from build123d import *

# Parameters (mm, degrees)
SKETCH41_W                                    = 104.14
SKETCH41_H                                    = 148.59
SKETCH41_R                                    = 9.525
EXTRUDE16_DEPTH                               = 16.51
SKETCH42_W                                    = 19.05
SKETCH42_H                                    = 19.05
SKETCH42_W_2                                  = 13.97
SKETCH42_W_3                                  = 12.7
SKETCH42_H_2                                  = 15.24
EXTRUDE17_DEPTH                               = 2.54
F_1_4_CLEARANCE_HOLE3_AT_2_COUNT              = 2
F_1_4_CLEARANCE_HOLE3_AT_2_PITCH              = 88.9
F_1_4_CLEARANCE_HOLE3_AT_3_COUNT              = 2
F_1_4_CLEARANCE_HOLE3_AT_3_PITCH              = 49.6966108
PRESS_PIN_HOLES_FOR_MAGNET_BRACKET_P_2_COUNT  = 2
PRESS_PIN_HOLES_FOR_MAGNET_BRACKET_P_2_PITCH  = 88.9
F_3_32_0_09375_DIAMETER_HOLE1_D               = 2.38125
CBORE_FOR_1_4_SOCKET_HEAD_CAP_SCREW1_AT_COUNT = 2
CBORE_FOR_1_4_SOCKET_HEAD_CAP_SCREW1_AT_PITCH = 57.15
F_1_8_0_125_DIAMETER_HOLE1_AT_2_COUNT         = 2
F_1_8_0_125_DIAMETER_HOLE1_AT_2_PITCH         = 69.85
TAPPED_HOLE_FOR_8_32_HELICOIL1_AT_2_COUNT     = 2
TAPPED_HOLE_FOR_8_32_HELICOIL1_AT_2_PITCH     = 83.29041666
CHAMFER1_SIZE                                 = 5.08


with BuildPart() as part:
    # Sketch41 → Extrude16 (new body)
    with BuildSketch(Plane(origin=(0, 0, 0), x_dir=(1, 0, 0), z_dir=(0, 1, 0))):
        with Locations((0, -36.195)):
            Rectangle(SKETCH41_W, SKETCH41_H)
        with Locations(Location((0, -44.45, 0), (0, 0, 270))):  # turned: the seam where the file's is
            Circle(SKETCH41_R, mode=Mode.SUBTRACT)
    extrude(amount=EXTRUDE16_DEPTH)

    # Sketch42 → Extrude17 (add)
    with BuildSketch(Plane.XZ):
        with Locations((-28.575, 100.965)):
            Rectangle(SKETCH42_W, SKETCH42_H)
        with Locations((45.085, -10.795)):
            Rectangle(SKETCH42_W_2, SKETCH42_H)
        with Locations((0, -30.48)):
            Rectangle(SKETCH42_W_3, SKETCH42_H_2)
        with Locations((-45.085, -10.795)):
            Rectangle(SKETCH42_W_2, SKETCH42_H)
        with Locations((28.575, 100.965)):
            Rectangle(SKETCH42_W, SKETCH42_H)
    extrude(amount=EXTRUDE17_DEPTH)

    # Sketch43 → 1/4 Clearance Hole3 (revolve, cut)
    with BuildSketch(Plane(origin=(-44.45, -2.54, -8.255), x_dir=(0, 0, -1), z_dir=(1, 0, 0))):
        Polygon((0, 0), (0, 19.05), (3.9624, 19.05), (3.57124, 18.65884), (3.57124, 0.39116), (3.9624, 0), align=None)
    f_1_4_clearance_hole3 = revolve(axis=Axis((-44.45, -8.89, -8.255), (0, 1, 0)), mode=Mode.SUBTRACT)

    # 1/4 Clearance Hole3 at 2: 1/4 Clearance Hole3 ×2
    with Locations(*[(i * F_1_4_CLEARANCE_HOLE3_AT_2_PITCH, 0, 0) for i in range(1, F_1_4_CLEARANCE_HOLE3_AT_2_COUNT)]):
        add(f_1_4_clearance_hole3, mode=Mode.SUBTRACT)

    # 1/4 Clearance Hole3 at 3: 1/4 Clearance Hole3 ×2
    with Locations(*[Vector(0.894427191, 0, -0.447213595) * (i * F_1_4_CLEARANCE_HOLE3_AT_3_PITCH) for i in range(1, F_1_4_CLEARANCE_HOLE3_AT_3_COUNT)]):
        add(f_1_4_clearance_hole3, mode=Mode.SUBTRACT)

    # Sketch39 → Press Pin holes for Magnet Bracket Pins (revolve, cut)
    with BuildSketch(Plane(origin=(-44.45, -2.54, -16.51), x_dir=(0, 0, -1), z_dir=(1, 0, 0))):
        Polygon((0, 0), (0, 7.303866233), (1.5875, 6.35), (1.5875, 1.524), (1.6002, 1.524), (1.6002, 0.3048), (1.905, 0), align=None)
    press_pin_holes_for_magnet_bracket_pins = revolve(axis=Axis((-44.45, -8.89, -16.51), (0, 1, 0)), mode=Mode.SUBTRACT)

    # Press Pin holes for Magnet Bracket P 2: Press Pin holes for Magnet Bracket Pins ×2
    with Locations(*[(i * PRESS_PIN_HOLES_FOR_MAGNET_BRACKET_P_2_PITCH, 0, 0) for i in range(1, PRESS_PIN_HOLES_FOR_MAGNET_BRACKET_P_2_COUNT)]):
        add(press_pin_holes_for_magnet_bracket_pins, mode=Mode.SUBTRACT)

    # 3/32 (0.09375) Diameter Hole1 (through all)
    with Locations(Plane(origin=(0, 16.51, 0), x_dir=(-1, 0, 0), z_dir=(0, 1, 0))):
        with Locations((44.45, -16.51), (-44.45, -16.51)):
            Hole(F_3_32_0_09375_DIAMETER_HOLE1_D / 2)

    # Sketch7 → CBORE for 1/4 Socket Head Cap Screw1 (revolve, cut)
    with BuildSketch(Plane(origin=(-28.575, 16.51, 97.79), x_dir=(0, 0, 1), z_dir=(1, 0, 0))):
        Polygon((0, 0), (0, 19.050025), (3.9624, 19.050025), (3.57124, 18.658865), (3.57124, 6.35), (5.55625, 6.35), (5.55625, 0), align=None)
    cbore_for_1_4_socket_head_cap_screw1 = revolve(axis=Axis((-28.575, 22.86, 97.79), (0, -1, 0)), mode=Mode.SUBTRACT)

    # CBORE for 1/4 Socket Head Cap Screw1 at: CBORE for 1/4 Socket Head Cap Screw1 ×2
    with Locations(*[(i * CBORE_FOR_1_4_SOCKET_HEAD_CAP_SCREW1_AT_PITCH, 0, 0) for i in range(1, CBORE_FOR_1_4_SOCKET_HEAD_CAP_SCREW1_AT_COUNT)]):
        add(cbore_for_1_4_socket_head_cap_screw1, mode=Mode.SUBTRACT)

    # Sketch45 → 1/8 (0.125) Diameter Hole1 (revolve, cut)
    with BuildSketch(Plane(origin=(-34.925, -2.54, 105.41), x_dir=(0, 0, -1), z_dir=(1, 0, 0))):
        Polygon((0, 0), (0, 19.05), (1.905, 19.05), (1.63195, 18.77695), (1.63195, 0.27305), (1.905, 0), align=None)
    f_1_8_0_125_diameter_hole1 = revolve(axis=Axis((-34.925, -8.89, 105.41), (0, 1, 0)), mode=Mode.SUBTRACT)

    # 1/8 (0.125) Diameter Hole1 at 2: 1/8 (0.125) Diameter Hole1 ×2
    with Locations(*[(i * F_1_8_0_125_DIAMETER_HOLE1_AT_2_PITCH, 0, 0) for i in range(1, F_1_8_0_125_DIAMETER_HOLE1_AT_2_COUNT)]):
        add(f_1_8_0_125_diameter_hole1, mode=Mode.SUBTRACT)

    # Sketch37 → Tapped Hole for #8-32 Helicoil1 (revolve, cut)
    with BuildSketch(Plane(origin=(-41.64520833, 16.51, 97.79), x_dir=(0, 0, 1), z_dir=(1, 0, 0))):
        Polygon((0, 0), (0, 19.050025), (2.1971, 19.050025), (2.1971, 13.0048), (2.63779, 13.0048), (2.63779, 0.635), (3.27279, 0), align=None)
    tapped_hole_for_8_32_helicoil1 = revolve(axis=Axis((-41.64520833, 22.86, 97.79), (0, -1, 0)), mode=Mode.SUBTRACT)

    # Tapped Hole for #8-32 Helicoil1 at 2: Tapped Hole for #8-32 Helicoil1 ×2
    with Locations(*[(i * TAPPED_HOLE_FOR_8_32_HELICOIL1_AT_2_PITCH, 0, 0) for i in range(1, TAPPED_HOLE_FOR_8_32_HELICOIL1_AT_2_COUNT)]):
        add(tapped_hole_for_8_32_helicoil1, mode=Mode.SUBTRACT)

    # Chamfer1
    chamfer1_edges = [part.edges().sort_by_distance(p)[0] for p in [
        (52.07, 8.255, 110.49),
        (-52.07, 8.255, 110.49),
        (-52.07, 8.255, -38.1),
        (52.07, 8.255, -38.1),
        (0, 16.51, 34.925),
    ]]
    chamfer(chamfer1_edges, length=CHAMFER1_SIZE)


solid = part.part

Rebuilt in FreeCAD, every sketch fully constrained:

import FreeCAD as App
import Part
import Sketcher

V = App.Vector
Q = App.Units.Quantity


def edges_at(feature, points):
    """Names of the edges that pass closest to the given points."""
    edges = feature.Shape.Edges
    near = lambda p: min(range(len(edges)), key=lambda i: edges[i].distToShape(Part.Vertex(*p))[0])
    return sorted({f"Edge{near(p) + 1}" for p in points})


def add_polygon(sketch, points):
    """Adds a closed chain of lines whose ends are joined by coincident constraints."""
    first, n = sketch.GeometryCount, len(points)
    for a, b in zip(points, points[1:] + points[:1]):
        sketch.addGeometry(Part.LineSegment(App.Vector(*a, 0), App.Vector(*b, 0)), False)
    for i in range(n):
        sketch.addConstraint(Sketcher.Constraint("Coincident", first + i, 2, first + (i + 1) % n, 1))

doc = App.newDocument("Part")
body = doc.addObject("PartDesign::Body", "Body")

# Sketch on XZ plane
sketch1 = doc.addObject("Sketcher::SketchObject", "Sketch")
body.addObject(sketch1)
sketch1.AttachmentSupport = (doc.XZ_Plane, [""])
sketch1.MapMode = "FlatFace"
add_polygon(sketch1, [(-52.07, -38.1), (-52.07, 110.49), (52.07, 110.49), (52.07, -38.1)])  # lines 0-3
sketch1.addGeometry(Part.Circle(V(0, 44.45, 0), V(0, 0, 1), 9.525), False)  # 4
sketch1.addConstraint([
    Sketcher.Constraint("Vertical", 0),
    Sketcher.Constraint("Horizontal", 1),
    Sketcher.Constraint("Vertical", 2),
    Sketcher.Constraint("Horizontal", 3),
    Sketcher.Constraint("PointOnObject", 4, 3, -2),
    Sketcher.Constraint("Diameter", 4, Q("0.75 in")),
    Sketcher.Constraint("DistanceX", 1, 1, 1, 2, Q("4.1 in")),
    Sketcher.Constraint("DistanceY", 0, 1, 0, 2, Q("5.85 in")),
    Sketcher.Constraint("DistanceY", 2, 2, -1, 1, Q("1.5 in")),
    Sketcher.Constraint("DistanceY", 4, 3, 0, 2, Q("2.6 in")),
    Sketcher.Constraint("DistanceX", 0, 2, -1, 1, Q("2.05 in")),
])
pad1 = doc.addObject("PartDesign::Pad", "Pad")
body.addObject(pad1)
pad1.Profile = sketch1
pad1.Length = Q("0.65 in")
pad1.Reversed = True

# Sketch on XZ plane
sketch2 = doc.addObject("Sketcher::SketchObject", "Sketch001")
body.addObject(sketch2)
sketch2.AttachmentSupport = (doc.XZ_Plane, [""])
sketch2.MapMode = "FlatFace"
add_polygon(sketch2, [(-38.1, 110.49), (-38.1, 91.44), (-19.05, 91.44), (-19.05, 110.49)])  # lines 0-3
add_polygon(sketch2, [(38.1, -1.27), (38.1, -20.32), (52.07, -20.32), (52.07, -1.27)])  # lines 4-7
add_polygon(sketch2, [(-6.35, -22.86), (-6.35, -38.1), (6.35, -38.1), (6.35, -22.86)])  # lines 8-11
add_polygon(sketch2, [(-52.07, -1.27), (-52.07, -20.32), (-38.1, -20.32), (-38.1, -1.27)])  # lines 12-15
add_polygon(sketch2, [(19.05, 110.49), (19.05, 91.44), (38.1, 91.44), (38.1, 110.49)])  # lines 16-19
sketch2.addConstraint([
    Sketcher.Constraint("Vertical", 0),
    Sketcher.Constraint("Horizontal", 1),
    Sketcher.Constraint("Vertical", 2),
    Sketcher.Constraint("Horizontal", 3),
    Sketcher.Constraint("Vertical", 4),
    Sketcher.Constraint("Horizontal", 5),
    Sketcher.Constraint("Vertical", 6),
    Sketcher.Constraint("Horizontal", 7),
    Sketcher.Constraint("Vertical", 8),
    Sketcher.Constraint("Horizontal", 9),
    Sketcher.Constraint("Vertical", 10),
    Sketcher.Constraint("Horizontal", 11),
    Sketcher.Constraint("Vertical", 12),
    Sketcher.Constraint("Horizontal", 13),
    Sketcher.Constraint("Vertical", 14),
    Sketcher.Constraint("Horizontal", 15),
    Sketcher.Constraint("Vertical", 16),
    Sketcher.Constraint("Horizontal", 17),
    Sketcher.Constraint("Vertical", 18),
    Sketcher.Constraint("Horizontal", 19),
    Sketcher.Constraint("Symmetric", 5, 2, 12, 2, -2),
    Sketcher.Constraint("Symmetric", 7, 2, 14, 2, -2),
    Sketcher.Constraint("Symmetric", 1, 2, 16, 2, -2),
    Sketcher.Constraint("Symmetric", 3, 2, 18, 2, -2),
    Sketcher.Constraint("Vertical", 3, 2, 13, 2),
    Sketcher.Constraint("Equal", 19, 0),
    Sketcher.Constraint("Equal", 2, 4),
    Sketcher.Constraint("DistanceX", 9, 1, 9, 2, Q("0.5 in")),
    Sketcher.Constraint("DistanceY", 8, 2, 8, 1, Q("0.6 in")),
    Sketcher.Constraint("DistanceX", 0, 2, 4, 2, Q("3 in")),
    Sketcher.Constraint("DistanceX", 1, 1, 1, 2, Q("0.75 in")),
    Sketcher.Constraint("DistanceX", 5, 1, 5, 2, Q("0.55 in")),
    Sketcher.Constraint("DistanceY", -1, 1, 0, 2, Q("3.6 in")),
    Sketcher.Constraint("DistanceY", 4, 2, -1, 1, Q("0.8 in")),
    Sketcher.Constraint("DistanceY", 8, 2, -1, 1, Q("1.5 in")),
    Sketcher.Constraint("DistanceX", 8, 2, 5, 2, Q("2.3 in")),
])
pad2 = doc.addObject("PartDesign::Pad", "Pad001")
body.addObject(pad2)
pad2.Profile = sketch2
pad2.Length = Q("0.1 in")

# Sketch on YZ plane
sketch3 = doc.addObject("Sketcher::SketchObject", "Sketch002")
body.addObject(sketch3)
sketch3.AttachmentSupport = (doc.YZ_Plane, [""])
sketch3.MapMode = "FlatFace"
sketch3.AttachmentOffset = App.Placement(V(0, 0, -1.75 * 25.4), App.Rotation())
add_polygon(sketch3, [(16.51, -8.255), (-2.54, -8.255), (-2.54, -12.2174), (-2.14884, -11.82624), (16.11884, -11.82624), (16.51, -12.2174)])  # lines 0-5
sketch3.addGeometry(Part.LineSegment(V(-2.54, -8.255, 0), V(16.51, -8.255, 0)), True)  # axis
sketch3.addConstraint([
    Sketcher.Constraint("Horizontal", 0),
    Sketcher.Constraint("Vertical", 1),
    Sketcher.Constraint("Horizontal", 3),
    Sketcher.Constraint("Vertical", 5),
    Sketcher.Constraint("Horizontal", 6),
    Sketcher.Constraint("Coincident", 6, 1, 0, 2),
    Sketcher.Constraint("Perpendicular", 2, 4),
    Sketcher.Constraint("Horizontal", 1, 2, 4, 2),
    Sketcher.Constraint("Vertical", 4, 2, 6, 2),
    Sketcher.Constraint("Equal", 2, 4),
    Sketcher.Constraint("DistanceX", 0, 2, 0, 1, Q("0.75 in")),
    Sketcher.Constraint("DistanceX", 0, 2, -1, 1, Q("0.1 in")),
    Sketcher.Constraint("DistanceY", 1, 2, 1, 1, Q("0.156 in")),
    Sketcher.Constraint("DistanceX", 3, 1, 3, 2, Q("0.7192 in")),
    Sketcher.Constraint("DistanceY", 0, 2, -1, 1, Q("0.325 in")),
])
groove = doc.addObject("PartDesign::Groove", "Groove")
body.addObject(groove)
groove.Profile = sketch3
groove.ReferenceAxis = (sketch3, ["Axis0"])
groove.Angle = 360
doc.recompute()

linearpattern = doc.addObject("PartDesign::LinearPattern", "LinearPattern")
body.addObject(linearpattern)
linearpattern.Originals = [groove]
linearpattern.Direction = (doc.X_Axis, [""])
linearpattern.Mode = "offset"
linearpattern.Offset = Q("3.5 in")
linearpattern.Occurrences = 2
body.Tip = linearpattern
doc.recompute()

datumline = doc.addObject("PartDesign::Line", "DatumLine")
body.addObject(datumline)
datumline.Placement = App.Placement(V(0, 0, 0), App.Rotation(V(0, 0, 1), V(0.894427191, 0, -0.447213595)))
linearpattern2 = doc.addObject("PartDesign::LinearPattern", "LinearPattern001")
body.addObject(linearpattern2)
linearpattern2.Originals = [groove]
linearpattern2.Direction = (datumline, [""])
linearpattern2.Mode = "offset"
linearpattern2.Offset = 49.696611
linearpattern2.Occurrences = 2
body.Tip = linearpattern2

# Sketch on YZ plane
sketch4 = doc.addObject("Sketcher::SketchObject", "Sketch003")
body.addObject(sketch4)
sketch4.AttachmentSupport = (doc.YZ_Plane, [""])
sketch4.MapMode = "FlatFace"
sketch4.AttachmentOffset = App.Placement(V(0, 0, -1.75 * 25.4), App.Rotation())
add_polygon(sketch4, [(4.763866, -16.51), (-2.54, -16.51), (-2.54, -18.415), (-2.2352, -18.1102), (-1.016, -18.1102), (-1.016, -18.0975), (3.81, -18.0975)])  # lines 0-6
sketch4.addGeometry(Part.LineSegment(V(-2.54, -16.51, 0), V(4.763866, -16.51, 0)), True)  # axis
sketch4.addConstraint([
    Sketcher.Constraint("Horizontal", 0),
    Sketcher.Constraint("Vertical", 1),
    Sketcher.Constraint("Horizontal", 3),
    Sketcher.Constraint("Vertical", 4),
    Sketcher.Constraint("Horizontal", 5),
    Sketcher.Constraint("Horizontal", 7),
    Sketcher.Constraint("Coincident", 7, 1, 0, 2),
    Sketcher.Constraint("Equal", 0, 7),
    Sketcher.Constraint("Angle", 2, Q("45 deg")),
    Sketcher.Constraint("Angle", 6, Q("59 deg")),
    Sketcher.Constraint("DistanceX", 5, 1, 5, 2, Q("0.19 in")),
    Sketcher.Constraint("DistanceX", 0, 2, -1, 1, Q("0.1 in")),
    Sketcher.Constraint("DistanceX", 3, 1, 3, 2, Q("0.048 in")),
    Sketcher.Constraint("DistanceY", 1, 2, 1, 1, Q("0.075 in")),
    Sketcher.Constraint("DistanceY", 0, 2, -1, 1, Q("0.65 in")),
    Sketcher.Constraint("DistanceX", 3, 2, -1, 1, Q("0.04 in")),
    Sketcher.Constraint("DistanceY", 4, 1, 4, 2, Q("0.0005 in")),
])
groove2 = doc.addObject("PartDesign::Groove", "Groove001")
body.addObject(groove2)
groove2.Profile = sketch4
groove2.ReferenceAxis = (sketch4, ["Axis0"])
groove2.Angle = 360
doc.recompute()

linearpattern3 = doc.addObject("PartDesign::LinearPattern", "LinearPattern002")
body.addObject(linearpattern3)
linearpattern3.Originals = [groove2]
linearpattern3.Direction = (doc.X_Axis, [""])
linearpattern3.Mode = "offset"
linearpattern3.Offset = Q("3.5 in")
linearpattern3.Occurrences = 2
body.Tip = linearpattern3

# Sketch on XZ plane
sketch5 = doc.addObject("Sketcher::SketchObject", "Sketch004")
body.addObject(sketch5)
sketch5.AttachmentSupport = (doc.XZ_Plane, [""])
sketch5.MapMode = "FlatFace"
sketch5.AttachmentOffset = App.Placement(V(0, 0, -0.65 * 25.4), App.Rotation())
sketch5.addGeometry([
    Part.Circle(V(-44.45, -16.51, 0), V(0, 0, 1), 1.190625),
    Part.Circle(V(44.45, -16.51, 0), V(0, 0, 1), 1.190625),
], False)
sketch5.addConstraint([
    Sketcher.Constraint("Equal", 0, 1),
    Sketcher.Constraint("Symmetric", 0, 3, 1, 3, -2),
    Sketcher.Constraint("Diameter", 0, Q("0.09375 in")),
    Sketcher.Constraint("DistanceX", 0, 3, 1, 3, Q("3.5 in")),
    Sketcher.Constraint("DistanceY", 0, 3, -1, 1, Q("0.65 in")),
])
doc.recompute()
hole = doc.addObject("PartDesign::Hole", "Hole")
body.addObject(hole)
hole.Profile = sketch5
hole.ThreadType = "None"
hole.Diameter = Q("0.09375 in")
hole.DepthType = "ThroughAll"
hole.Reversed = True

# Sketch on YZ plane
sketch6 = doc.addObject("Sketcher::SketchObject", "Sketch005")
body.addObject(sketch6)
sketch6.AttachmentSupport = (doc.YZ_Plane, [""])
sketch6.MapMode = "FlatFace"
sketch6.AttachmentOffset = App.Placement(V(0, 0, -1.125 * 25.4), App.Rotation())
add_polygon(sketch6, [(-2.540025, 97.79), (16.51, 97.79), (16.51, 103.34625), (10.16, 103.34625), (10.16, 101.36124), (-2.148865, 101.36124), (-2.540025, 101.7524)])  # lines 0-6
sketch6.addGeometry(Part.LineSegment(V(16.51, 97.79, 0), V(-2.540025, 97.79, 0)), True)  # axis
sketch6.addConstraint([
    Sketcher.Constraint("Horizontal", 0),
    Sketcher.Constraint("Vertical", 1),
    Sketcher.Constraint("Horizontal", 2),
    Sketcher.Constraint("Vertical", 3),
    Sketcher.Constraint("Horizontal", 4),
    Sketcher.Constraint("Vertical", 6),
    Sketcher.Constraint("Horizontal", 7),
    Sketcher.Constraint("Coincident", 7, 1, 0, 2),
    Sketcher.Constraint("Vertical", 5, 2, 7, 2),
    Sketcher.Constraint("Angle", 5, Q("135 deg")),
    Sketcher.Constraint("DistanceX", 2, 2, 2, 1, Q("0.25 in")),
    Sketcher.Constraint("DistanceX", -1, 1, 2, 2, Q("0.4 in")),
    Sketcher.Constraint("DistanceY", 1, 1, 1, 2, Q("0.21875 in")),
    Sketcher.Constraint("DistanceY", 6, 2, 6, 1, Q("0.156 in")),
    Sketcher.Constraint("DistanceY", -1, 1, 0, 2, Q("3.85 in")),
    Sketcher.Constraint("DistanceY", -1, 1, 3, 2, Q("3.9906 in")),
    Sketcher.Constraint("DistanceX", 0, 1, 0, 2, Q("19.050025 mm")),
])
groove3 = doc.addObject("PartDesign::Groove", "Groove002")
body.addObject(groove3)
groove3.Profile = sketch6
groove3.ReferenceAxis = (sketch6, ["Axis0"])
groove3.Angle = 360
doc.recompute()

linearpattern4 = doc.addObject("PartDesign::LinearPattern", "LinearPattern003")
body.addObject(linearpattern4)
linearpattern4.Originals = [groove3]
linearpattern4.Direction = (doc.X_Axis, [""])
linearpattern4.Mode = "offset"
linearpattern4.Offset = Q("2.25 in")
linearpattern4.Occurrences = 2
body.Tip = linearpattern4

# Sketch on YZ plane
sketch7 = doc.addObject("Sketcher::SketchObject", "Sketch006")
body.addObject(sketch7)
sketch7.AttachmentSupport = (doc.YZ_Plane, [""])
sketch7.MapMode = "FlatFace"
sketch7.AttachmentOffset = App.Placement(V(0, 0, -1.375 * 25.4), App.Rotation())
add_polygon(sketch7, [(16.51, 105.41), (-2.54, 105.41), (-2.54, 103.505), (-2.26695, 103.77805), (16.23695, 103.77805), (16.51, 103.505)])  # lines 0-5
sketch7.addGeometry(Part.LineSegment(V(-2.54, 105.41, 0), V(16.51, 105.41, 0)), True)  # axis
sketch7.addConstraint([
    Sketcher.Constraint("Horizontal", 0),
    Sketcher.Constraint("Vertical", 1),
    Sketcher.Constraint("Horizontal", 3),
    Sketcher.Constraint("Vertical", 5),
    Sketcher.Constraint("Horizontal", 6),
    Sketcher.Constraint("Coincident", 6, 1, 0, 2),
    Sketcher.Constraint("Perpendicular", 2, 4),
    Sketcher.Constraint("Horizontal", 1, 2, 4, 2),
    Sketcher.Constraint("Vertical", 4, 2, 6, 2),
    Sketcher.Constraint("Equal", 2, 4),
    Sketcher.Constraint("DistanceX", 0, 2, 0, 1, Q("0.75 in")),
    Sketcher.Constraint("DistanceX", 0, 2, -1, 1, Q("0.1 in")),
    Sketcher.Constraint("DistanceY", 1, 2, 1, 1, Q("0.075 in")),
    Sketcher.Constraint("DistanceY", -1, 1, 0, 2, Q("4.15 in")),
    Sketcher.Constraint("DistanceX", 3, 1, 3, 2, Q("0.7285 in")),
])
groove4 = doc.addObject("PartDesign::Groove", "Groove003")
body.addObject(groove4)
groove4.Profile = sketch7
groove4.ReferenceAxis = (sketch7, ["Axis0"])
groove4.Angle = 360
doc.recompute()

linearpattern5 = doc.addObject("PartDesign::LinearPattern", "LinearPattern004")
body.addObject(linearpattern5)
linearpattern5.Originals = [groove4]
linearpattern5.Direction = (doc.X_Axis, [""])
linearpattern5.Mode = "offset"
linearpattern5.Offset = Q("2.75 in")
linearpattern5.Occurrences = 2
body.Tip = linearpattern5

# Sketch on YZ plane
sketch8 = doc.addObject("Sketcher::SketchObject", "Sketch007")
body.addObject(sketch8)
sketch8.AttachmentSupport = (doc.YZ_Plane, [""])
sketch8.MapMode = "FlatFace"
sketch8.AttachmentOffset = App.Placement(V(0, 0, -41.645208), App.Rotation())
add_polygon(sketch8, [(-2.540025, 97.79), (16.51, 97.79), (16.51, 101.06279), (15.875, 100.42779), (3.5052, 100.42779), (3.5052, 99.9871), (-2.540025, 99.9871)])  # lines 0-6
sketch8.addGeometry(Part.LineSegment(V(16.51, 97.79, 0), V(-2.540025, 97.79, 0)), True)  # axis
sketch8.addConstraint([
    Sketcher.Constraint("Horizontal", 0),
    Sketcher.Constraint("Vertical", 1),
    Sketcher.Constraint("Horizontal", 3),
    Sketcher.Constraint("Vertical", 4),
    Sketcher.Constraint("Horizontal", 5),
    Sketcher.Constraint("Vertical", 6),
    Sketcher.Constraint("Horizontal", 7),
    Sketcher.Constraint("Coincident", 7, 1, 0, 2),
    Sketcher.Constraint("Vertical", 5, 2, 7, 2),
    Sketcher.Constraint("Angle", 2, Q("-135 deg")),
    Sketcher.Constraint("DistanceX", 3, 2, 3, 1, Q("0.487 in")),
    Sketcher.Constraint("DistanceX", -1, 1, 0, 2, Q("0.65 in")),
    Sketcher.Constraint("DistanceY", -1, 1, 0, 2, Q("3.85 in")),
    Sketcher.Constraint("DistanceY", 6, 2, 6, 1, Q("0.0865 in")),
    Sketcher.Constraint("DistanceX", -1, 1, 2, 2, Q("0.625 in")),
    Sketcher.Constraint("DistanceY", 1, 1, 1, 2, Q("3.27279 mm")),
    Sketcher.Constraint("DistanceX", 0, 1, 0, 2, Q("19.050025 mm")),
])
groove5 = doc.addObject("PartDesign::Groove", "Groove004")
body.addObject(groove5)
groove5.Profile = sketch8
groove5.ReferenceAxis = (sketch8, ["Axis0"])
groove5.Angle = 360
doc.recompute()

linearpattern6 = doc.addObject("PartDesign::LinearPattern", "LinearPattern005")
body.addObject(linearpattern6)
linearpattern6.Originals = [groove5]
linearpattern6.Direction = (doc.X_Axis, [""])
linearpattern6.Mode = "offset"
linearpattern6.Offset = 83.290417
linearpattern6.Occurrences = 2
body.Tip = linearpattern6
doc.recompute()

chamfer = doc.addObject("PartDesign::Chamfer", "Chamfer")
body.addObject(chamfer)
chamfer.Base = (linearpattern6, edges_at(linearpattern6, [
    (52.07, 8.255, 110.49),
    (-52.07, 8.255, 110.49),
    (-52.07, 8.255, -38.1),
    (52.07, 8.255, -38.1),
    (0, 16.51, 34.925),
]))
chamfer.Size = Q("0.2 in")

doc.recompute()
